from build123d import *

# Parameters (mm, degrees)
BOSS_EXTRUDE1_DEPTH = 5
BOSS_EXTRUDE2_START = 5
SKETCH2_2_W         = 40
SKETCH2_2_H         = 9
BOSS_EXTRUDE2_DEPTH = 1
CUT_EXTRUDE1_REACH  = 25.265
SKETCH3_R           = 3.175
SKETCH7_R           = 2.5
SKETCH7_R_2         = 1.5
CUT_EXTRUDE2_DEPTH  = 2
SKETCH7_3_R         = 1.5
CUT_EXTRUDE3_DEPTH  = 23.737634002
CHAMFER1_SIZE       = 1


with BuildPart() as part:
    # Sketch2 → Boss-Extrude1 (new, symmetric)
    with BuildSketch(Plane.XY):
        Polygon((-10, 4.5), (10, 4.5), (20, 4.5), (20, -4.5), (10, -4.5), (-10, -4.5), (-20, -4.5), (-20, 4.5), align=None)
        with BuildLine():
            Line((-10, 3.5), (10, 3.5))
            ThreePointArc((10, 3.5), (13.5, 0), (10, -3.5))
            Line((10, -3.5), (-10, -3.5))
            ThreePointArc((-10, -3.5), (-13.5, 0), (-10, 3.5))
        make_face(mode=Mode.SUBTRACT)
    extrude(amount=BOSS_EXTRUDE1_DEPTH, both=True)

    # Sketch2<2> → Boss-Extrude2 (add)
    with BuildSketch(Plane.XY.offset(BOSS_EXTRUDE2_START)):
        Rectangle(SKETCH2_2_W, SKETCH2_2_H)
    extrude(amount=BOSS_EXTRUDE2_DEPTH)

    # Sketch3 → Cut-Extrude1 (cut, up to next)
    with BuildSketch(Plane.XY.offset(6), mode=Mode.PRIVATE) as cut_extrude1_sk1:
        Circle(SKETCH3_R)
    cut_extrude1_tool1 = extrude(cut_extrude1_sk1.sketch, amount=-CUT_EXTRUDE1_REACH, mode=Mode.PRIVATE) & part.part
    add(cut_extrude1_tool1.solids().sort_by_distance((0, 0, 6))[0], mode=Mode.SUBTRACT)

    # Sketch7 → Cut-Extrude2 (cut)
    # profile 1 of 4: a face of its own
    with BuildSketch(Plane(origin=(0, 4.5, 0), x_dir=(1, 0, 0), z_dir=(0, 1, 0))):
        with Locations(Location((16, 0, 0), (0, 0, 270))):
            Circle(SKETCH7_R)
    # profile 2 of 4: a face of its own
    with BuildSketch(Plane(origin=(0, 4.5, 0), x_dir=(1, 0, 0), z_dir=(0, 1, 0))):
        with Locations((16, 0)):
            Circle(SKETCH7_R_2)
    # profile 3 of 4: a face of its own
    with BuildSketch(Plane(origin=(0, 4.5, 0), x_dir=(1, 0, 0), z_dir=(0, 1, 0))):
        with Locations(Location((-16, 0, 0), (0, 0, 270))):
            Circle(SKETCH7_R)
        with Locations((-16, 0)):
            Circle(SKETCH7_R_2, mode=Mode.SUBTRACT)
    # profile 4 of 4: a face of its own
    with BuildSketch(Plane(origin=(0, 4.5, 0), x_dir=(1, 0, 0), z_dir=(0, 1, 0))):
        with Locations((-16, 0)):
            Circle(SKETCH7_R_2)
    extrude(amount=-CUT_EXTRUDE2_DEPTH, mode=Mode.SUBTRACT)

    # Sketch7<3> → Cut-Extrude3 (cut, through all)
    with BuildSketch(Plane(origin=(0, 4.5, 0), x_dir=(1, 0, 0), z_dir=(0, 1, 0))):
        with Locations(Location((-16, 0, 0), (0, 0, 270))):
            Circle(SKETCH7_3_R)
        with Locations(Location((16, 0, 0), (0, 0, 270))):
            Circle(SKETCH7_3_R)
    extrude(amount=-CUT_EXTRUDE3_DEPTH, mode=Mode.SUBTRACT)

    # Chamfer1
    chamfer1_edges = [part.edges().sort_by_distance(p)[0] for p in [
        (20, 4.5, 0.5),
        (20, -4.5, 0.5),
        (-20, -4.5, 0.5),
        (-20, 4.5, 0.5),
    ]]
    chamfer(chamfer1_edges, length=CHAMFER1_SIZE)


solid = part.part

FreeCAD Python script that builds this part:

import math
import FreeCAD as App
import Part
import Sketcher
from FreeCAD import Vector
Q = App.Units.Quantity


def edges_at(feature, points):
    """Names of the edges that pass closest to the given points."""
    edges = feature.Shape.Edges
    near = lambda p: min(range(len(edges)), key=lambda i: edges[i].distToShape(Part.Vertex(*p))[0])
    return sorted({f"Edge{near(p) + 1}" for p in points})


def add_polygon(sketch, points):
    """Adds a closed chain of lines whose ends are joined by coincident constraints."""
    first, n = sketch.GeometryCount, len(points)
    for a, b in zip(points, points[1:] + points[:1]):
        sketch.addGeometry(Part.LineSegment(App.Vector(*a, 0), App.Vector(*b, 0)), False)
    for i in range(n):
        sketch.addConstraint(Sketcher.Constraint("Coincident", first + i, 2, first + (i + 1) % n, 1))

doc = App.newDocument("Part")
params = doc.addObject("Spreadsheet::Sheet", "Params")
for row, (alias, value) in enumerate([
    ("sketch1_radius", "3.5 mm"),
    ("sketch1_width", "40 mm"),
    ("sketch1_width2", "20 mm"),
    ("sketch1_height", "9 mm"),
    ("pad1_length", "10 mm"),
    ("sketch2_width", "40 mm"),
    ("sketch2_height", "9 mm"),
    ("pad2_length", "1 mm"),
    ("sketch3_diameter", "6.35 mm"),
    ("sketch4_diameter", "5 mm"),
    ("pocket2_length", "2 mm"),
    ("sketch5_diameter", "3 mm"),
    ("chamfer_size", "1 mm"),
], start=1):
    params.set(f"A{row}", alias)
    params.set(f"B{row}", "=" + value)
    params.setAlias(f"B{row}", alias)

body = doc.addObject("PartDesign::Body", "Body")

sketch1 = body.newObject("Sketcher::SketchObject", "Sketch")
sketch1.AttachmentSupport = (doc.getObject("XY_Plane"), [""])
sketch1.MapMode = "FlatFace"
add_polygon(sketch1, [(20, 4.5), (-20, 4.5), (-20, -4.5), (20, -4.5)])
sketch1.addGeometry(Part.LineSegment(Vector(-10, 3.5, 0), Vector(10, 3.5, 0)), False)
sketch1.addGeometry(Part.ArcOfCircle(Part.Circle(Vector(10, 0, 0), Vector(0, 0, 1), 3.5), math.radians(-90), math.radians(90)), False)
sketch1.addGeometry(Part.LineSegment(Vector(10, -3.5, 0), Vector(-10, -3.5, 0)), False)
sketch1.addGeometry(Part.ArcOfCircle(Part.Circle(Vector(-10, 0, 0), Vector(0, 0, 1), 3.5), math.radians(90), math.radians(270)), False)
sketch1.addConstraint([
    Sketcher.Constraint("Tangent", 4, 2, 5, 2),
    Sketcher.Constraint("Tangent", 5, 1, 6, 1),
    Sketcher.Constraint("Tangent", 6, 2, 7, 2),
    Sketcher.Constraint("Tangent", 7, 1, 4, 1),
    Sketcher.Constraint("Horizontal", 0),
    Sketcher.Constraint("Vertical", 1),
    Sketcher.Constraint("Horizontal", 2),
    Sketcher.Constraint("Vertical", 3),
    Sketcher.Constraint("Horizontal", 4),
    Sketcher.Constraint("Horizontal", 6),
    Sketcher.Constraint("Symmetric", 5, 3, 7, 3, -1, 1),
    Sketcher.Constraint("Symmetric", 0, 2, 2, 2, -1, 1),
    Sketcher.Constraint("Radius", 5, Q("3.5 mm")),
    Sketcher.Constraint("DistanceX", 0, 2, 0, 1, Q("40 mm")),
    Sketcher.Constraint("DistanceX", 4, 1, 4, 2, Q("20 mm")),
    Sketcher.Constraint("DistanceY", 1, 2, 1, 1, Q("9 mm")),
])
sketch1.setExpression("Constraints[16]", "Params.sketch1_radius")
sketch1.setExpression("Constraints[17]", "Params.sketch1_width")
sketch1.setExpression("Constraints[18]", "Params.sketch1_width2")
sketch1.setExpression("Constraints[19]", "Params.sketch1_height")
pad1 = body.newObject("PartDesign::Pad", "Pad")
pad1.Profile = sketch1
pad1.setExpression("Length", "Params.pad1_length")
pad1.Midplane = True

sketch2 = body.newObject("Sketcher::SketchObject", "Sketch001")
sketch2.AttachmentSupport = (doc.getObject("XY_Plane"), [""])
sketch2.MapMode = "FlatFace"
sketch2.AttachmentOffset = App.Placement(Vector(0, 0, 5), App.Rotation())
add_polygon(sketch2, [(-20, 4.5), (-20, -4.5), (20, -4.5), (20, 4.5)])
sketch2.addConstraint([
    Sketcher.Constraint("Vertical", 0),
    Sketcher.Constraint("Horizontal", 1),
    Sketcher.Constraint("Vertical", 2),
    Sketcher.Constraint("Horizontal", 3),
    Sketcher.Constraint("Symmetric", 0, 2, 2, 2, -1, 1),
    Sketcher.Constraint("DistanceX", 1, 1, 1, 2, Q("40 mm")),
    Sketcher.Constraint("DistanceY", 0, 2, 0, 1, Q("9 mm")),
])
sketch2.setExpression("Constraints[9]", "Params.sketch2_width")
sketch2.setExpression("Constraints[10]", "Params.sketch2_height")
pad2 = body.newObject("PartDesign::Pad", "Pad001")
pad2.Profile = sketch2
pad2.setExpression("Length", "Params.pad2_length")

sketch3 = body.newObject("Sketcher::SketchObject", "Sketch002")
sketch3.AttachmentSupport = (doc.getObject("XY_Plane"), [""])
sketch3.MapMode = "FlatFace"
sketch3.AttachmentOffset = App.Placement(Vector(0, 0, 6), App.Rotation())
sketch3.addGeometry(Part.Circle(Vector(0, 0, 0), Vector(0, 0, 1), 3.175), False)
sketch3.addConstraint([
    Sketcher.Constraint("Coincident", 0, 3, -1, 1),
    Sketcher.Constraint("Diameter", 0, Q("6.35 mm")),
])
sketch3.setExpression("Constraints[1]", "Params.sketch3_diameter")
pocket1 = body.newObject("PartDesign::Pocket", "Pocket")
pocket1.Profile = sketch3
pocket1.Type = "UpToFirst"

sketch4 = body.newObject("Sketcher::SketchObject", "Sketch003")
sketch4.AttachmentSupport = (doc.getObject("XZ_Plane"), [""])
sketch4.MapMode = "FlatFace"
sketch4.AttachmentOffset = App.Placement(Vector(0, 0, -4.5), App.Rotation())
sketch4.addGeometry([
    Part.Circle(Vector(16, 0, 0), Vector(0, 0, 1), 2.5),
    Part.Circle(Vector(-16, 0, 0), Vector(0, 0, 1), 2.5),
], False)
sketch4.addConstraint([
    Sketcher.Constraint("Equal", 0, 1),
    Sketcher.Constraint("Symmetric", 0, 3, 1, 3, -1, 1),
    Sketcher.Constraint("PointOnObject", 0, 3, -1),
    Sketcher.Constraint("Diameter", 0, Q("5 mm")),
    Sketcher.Constraint("DistanceX", -1, 1, 0, 3, Q("16 mm")),
])
sketch4.setExpression("Constraints[3]", "Params.sketch4_diameter")
pocket2 = body.newObject("PartDesign::Pocket", "Pocket001")
pocket2.Profile = sketch4
pocket2.setExpression("Length", "Params.pocket2_length")
pocket2.Reversed = True

sketch5 = body.newObject("Sketcher::SketchObject", "Sketch004")
sketch5.AttachmentSupport = (doc.getObject("XZ_Plane"), [""])
sketch5.MapMode = "FlatFace"
sketch5.AttachmentOffset = App.Placement(Vector(0, 0, -4.5), App.Rotation())
sketch5.addGeometry([
    Part.Circle(Vector(-16, 0, 0), Vector(0, 0, 1), 1.5),
    Part.Circle(Vector(16, 0, 0), Vector(0, 0, 1), 1.5),
], False)
sketch5.addConstraint([
    Sketcher.Constraint("Equal", 0, 1),
    Sketcher.Constraint("Symmetric", 0, 3, 1, 3, -1, 1),
    Sketcher.Constraint("PointOnObject", 0, 3, -1),
    Sketcher.Constraint("Diameter", 0, Q("3 mm")),
    Sketcher.Constraint("DistanceX", 0, 3, -1, 1, Q("16 mm")),
])
sketch5.setExpression("Constraints[3]", "Params.sketch5_diameter")
pocket3 = body.newObject("PartDesign::Pocket", "Pocket002")
pocket3.Profile = sketch5
pocket3.Type = "ThroughAll"
pocket3.Reversed = True
doc.recompute()

chamfer = body.newObject("PartDesign::Chamfer", "Chamfer")
chamfer.Base = (pocket3, edges_at(pocket3, [
    (20, 4.5, 0.5),
    (20, -4.5, 0.5),
    (-20, -4.5, 0.5),
    (-20, 4.5, 0.5),
]))
chamfer.setExpression("Size", "Params.chamfer_size")

doc.recompute()
